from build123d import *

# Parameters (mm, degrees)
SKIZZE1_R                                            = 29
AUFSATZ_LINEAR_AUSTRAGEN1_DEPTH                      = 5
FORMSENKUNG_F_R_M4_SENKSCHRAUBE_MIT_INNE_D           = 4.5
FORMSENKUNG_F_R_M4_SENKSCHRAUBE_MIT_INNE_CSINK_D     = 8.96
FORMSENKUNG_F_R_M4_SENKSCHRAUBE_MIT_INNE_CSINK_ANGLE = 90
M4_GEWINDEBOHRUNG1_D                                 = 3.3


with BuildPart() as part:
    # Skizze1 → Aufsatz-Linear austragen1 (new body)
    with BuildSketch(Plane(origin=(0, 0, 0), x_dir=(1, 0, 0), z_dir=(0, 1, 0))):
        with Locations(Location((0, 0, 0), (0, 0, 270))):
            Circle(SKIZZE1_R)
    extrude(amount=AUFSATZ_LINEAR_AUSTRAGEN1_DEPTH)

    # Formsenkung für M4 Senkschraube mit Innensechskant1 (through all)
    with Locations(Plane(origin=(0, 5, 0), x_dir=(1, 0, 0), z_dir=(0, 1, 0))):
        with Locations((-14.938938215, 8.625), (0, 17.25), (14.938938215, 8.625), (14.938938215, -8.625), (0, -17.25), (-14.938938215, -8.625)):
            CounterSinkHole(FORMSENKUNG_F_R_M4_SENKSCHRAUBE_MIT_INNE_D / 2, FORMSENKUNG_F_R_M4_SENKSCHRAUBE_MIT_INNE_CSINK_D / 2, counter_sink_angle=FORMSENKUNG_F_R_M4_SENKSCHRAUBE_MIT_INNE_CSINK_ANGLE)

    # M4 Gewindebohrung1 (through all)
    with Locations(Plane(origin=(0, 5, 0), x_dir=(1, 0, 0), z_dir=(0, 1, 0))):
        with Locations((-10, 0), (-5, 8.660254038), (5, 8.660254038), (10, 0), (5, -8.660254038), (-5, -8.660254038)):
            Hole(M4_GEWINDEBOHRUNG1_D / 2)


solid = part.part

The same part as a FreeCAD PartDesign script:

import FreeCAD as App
import Part
import Sketcher
Q = App.Units.Quantity

doc = App.newDocument("Part")
params = doc.addObject("Spreadsheet::Sheet", "Params")
for row, (alias, value) in enumerate([
    ("sketch1_diameter", "58 mm"),
    ("pad1_length", "5 mm"),
    ("sketch2_diameter", "4.5 mm"),
    ("hole_diameter", "4.5 mm"),
    ("hole_csink_diameter", "8.96 mm"),
    ("sketch3_diameter", "3.3 mm"),
    ("hole2_diameter", "3.3 mm"),
], start=1):
    params.set(f"A{row}", alias)
    params.set(f"B{row}", "=" + value)
    params.setAlias(f"B{row}", alias)

body = doc.addObject("PartDesign::Body", "Body")

# Sketch on XZ plane
sketch1 = body.newObject("Sketcher::SketchObject", "Sketch")
sketch1.AttachmentSupport = (doc.getObject("XZ_Plane"), [""])
sketch1.MapMode = "FlatFace"
sketch1.addGeometry(Part.Circle(App.Vector(0, 0, 0), App.Vector(0, 0, 1), 29), False)
sketch1.addConstraint([
    Sketcher.Constraint("Coincident", 0, 3, -1, 1),
    Sketcher.Constraint("Diameter", 0, Q("58 mm")),
])
sketch1.setExpression("Constraints[1]", "Params.sketch1_diameter")
pad1 = body.newObject("PartDesign::Pad", "Pad")
pad1.Profile = sketch1
pad1.setExpression("Length", "Params.pad1_length")
pad1.Reversed = True

# Sketch on XZ plane
sketch2 = body.newObject("Sketcher::SketchObject", "Sketch001")
sketch2.AttachmentSupport = (doc.getObject("XZ_Plane"), [""])
sketch2.MapMode = "FlatFace"
sketch2.AttachmentOffset = App.Placement(App.Vector(0, 0, -5), App.Rotation())
sketch2.addGeometry([
    Part.Circle(App.Vector(-14.9, -8.6, 0), App.Vector(0, 0, 1), 2.2),  # 0
    Part.Circle(App.Vector(0, -17.2, 0), App.Vector(0, 0, 1), 2.2),  # 1
    Part.Circle(App.Vector(14.9, -8.6, 0), App.Vector(0, 0, 1), 2.2),  # 2
    Part.Circle(App.Vector(14.9, 8.6, 0), App.Vector(0, 0, 1), 2.2),  # 3
    Part.Circle(App.Vector(0, 17.2, 0), App.Vector(0, 0, 1), 2.2),  # 4
    Part.Circle(App.Vector(-14.9, 8.6, 0), App.Vector(0, 0, 1), 2.2),  # 5
], False)
sketch2.addConstraint([
    Sketcher.Constraint("Equal", 0, 1),
    Sketcher.Constraint("Equal", 1, 2),
    Sketcher.Constraint("Equal", 2, 3),
    Sketcher.Constraint("Equal", 3, 4),
    Sketcher.Constraint("Equal", 4, 5),
    Sketcher.Constraint("Symmetric", 0, 3, 3, 3, -1, 1),
    Sketcher.Constraint("Symmetric", 1, 3, 4, 3, -1, 1),
    Sketcher.Constraint("Symmetric", 2, 3, 5, 3, -1, 1),
    Sketcher.Constraint("Symmetric", 0, 3, 2, 3, -2),
    Sketcher.Constraint("PointOnObject", 1, 3, -2),
    Sketcher.Constraint("Diameter", 0, Q("4.5 mm")),
    Sketcher.Constraint("DistanceY", 1, 3, 4, 3, Q("34.5 mm")),
    Sketcher.Constraint("DistanceY", 2, 3, 3, 3, Q("17.25 mm")),
    Sketcher.Constraint("DistanceX", 0, 3, -1, 1, Q("14.938938 mm")),
])
sketch2.setExpression("Constraints[10]", "Params.sketch2_diameter")
doc.recompute()
hole = body.newObject("PartDesign::Hole", "Hole")
hole.Profile = sketch2
hole.ThreadType = "None"
hole.setExpression("Diameter", "Params.hole_diameter")
hole.DepthType = "ThroughAll"
hole.HoleCutType = "Countersink"
hole.setExpression("HoleCutDiameter", "Params.hole_csink_diameter")
hole.HoleCutCountersinkAngle = 90
hole.Reversed = True

# Sketch on XZ plane
sketch3 = body.newObject("Sketcher::SketchObject", "Sketch002")
sketch3.AttachmentSupport = (doc.getObject("XZ_Plane"), [""])
sketch3.MapMode = "FlatFace"
sketch3.AttachmentOffset = App.Placement(App.Vector(0, 0, -5), App.Rotation())
sketch3.addGeometry([
    Part.Circle(App.Vector(-10, 0, 0), App.Vector(0, 0, 1), 1.6),  # 0
    Part.Circle(App.Vector(-5, -8.7, 0), App.Vector(0, 0, 1), 1.6),  # 1
    Part.Circle(App.Vector(5, -8.7, 0), App.Vector(0, 0, 1), 1.6),  # 2
    Part.Circle(App.Vector(10, 0, 0), App.Vector(0, 0, 1), 1.6),  # 3
    Part.Circle(App.Vector(5, 8.7, 0), App.Vector(0, 0, 1), 1.6),  # 4
    Part.Circle(App.Vector(-5, 8.7, 0), App.Vector(0, 0, 1), 1.6),  # 5
], False)
sketch3.addConstraint([
    Sketcher.Constraint("Equal", 0, 1),
    Sketcher.Constraint("Equal", 1, 2),
    Sketcher.Constraint("Equal", 2, 3),
    Sketcher.Constraint("Equal", 3, 4),
    Sketcher.Constraint("Equal", 4, 5),
    Sketcher.Constraint("Symmetric", 0, 3, 3, 3, -1, 1),
    Sketcher.Constraint("Symmetric", 1, 3, 4, 3, -1, 1),
    Sketcher.Constraint("Symmetric", 2, 3, 5, 3, -1, 1),
    Sketcher.Constraint("Symmetric", 1, 3, 2, 3, -2),
    Sketcher.Constraint("PointOnObject", 0, 3, -1),
    Sketcher.Constraint("Diameter", 0, Q("3.3 mm")),
    Sketcher.Constraint("DistanceX", 0, 3, -1, 1, Q("10 mm")),
    Sketcher.Constraint("DistanceX", 1, 3, -1, 1, Q("5 mm")),
    Sketcher.Constraint("DistanceY", 2, 3, 4, 3, Q("17.320508 mm")),
])
sketch3.setExpression("Constraints[10]", "Params.sketch3_diameter")
doc.recompute()
hole2 = body.newObject("PartDesign::Hole", "Hole001")
hole2.Profile = sketch3
hole2.ThreadType = "None"
hole2.setExpression("Diameter", "Params.hole2_diameter")
hole2.DepthType = "ThroughAll"
hole2.Reversed = True

doc.recompute()
